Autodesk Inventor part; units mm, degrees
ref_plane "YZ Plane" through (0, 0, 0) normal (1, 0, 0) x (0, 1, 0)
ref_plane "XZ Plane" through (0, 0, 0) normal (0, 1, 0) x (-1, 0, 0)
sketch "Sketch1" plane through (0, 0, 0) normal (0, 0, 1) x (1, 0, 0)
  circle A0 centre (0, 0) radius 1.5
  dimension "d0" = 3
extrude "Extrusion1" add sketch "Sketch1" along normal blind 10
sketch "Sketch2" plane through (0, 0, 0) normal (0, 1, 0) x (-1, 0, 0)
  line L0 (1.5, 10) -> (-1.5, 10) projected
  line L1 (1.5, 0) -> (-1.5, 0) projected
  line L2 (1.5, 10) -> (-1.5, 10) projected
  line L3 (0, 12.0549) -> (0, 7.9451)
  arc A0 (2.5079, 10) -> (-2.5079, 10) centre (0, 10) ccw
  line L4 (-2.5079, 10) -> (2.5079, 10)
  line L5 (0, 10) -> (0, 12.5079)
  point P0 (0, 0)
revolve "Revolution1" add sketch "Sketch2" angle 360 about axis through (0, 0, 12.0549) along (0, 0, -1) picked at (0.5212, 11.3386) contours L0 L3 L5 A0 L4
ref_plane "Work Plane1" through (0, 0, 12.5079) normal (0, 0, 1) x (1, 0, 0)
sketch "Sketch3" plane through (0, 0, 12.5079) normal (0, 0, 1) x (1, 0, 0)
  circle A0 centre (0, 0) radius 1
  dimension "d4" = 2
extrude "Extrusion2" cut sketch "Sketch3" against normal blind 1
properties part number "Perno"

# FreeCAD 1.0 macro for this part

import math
import FreeCAD as App
import Part
import Sketcher

V = App.Vector

doc = App.newDocument("Part")
params = doc.addObject("Spreadsheet::Sheet", "Params")
for row, (alias, value) in enumerate([
    ("sketch1_diameter", "3 mm"),
    ("pad1_length", "10 mm"),
    ("revolution_angle", "360 deg"),
    ("sketch3_diameter", "2 mm"),
    ("pocket1_length", "1 mm"),
], start=1):
    params.set(f"A{row}", alias)
    params.set(f"B{row}", "=" + value)
    params.setAlias(f"B{row}", alias)

body = doc.addObject("PartDesign::Body", "Body")

# Sketch on XY plane
sketch1 = body.newObject("Sketcher::SketchObject", "Sketch")
sketch1.AttachmentSupport = (doc.getObject("XY_Plane"), [""])
sketch1.MapMode = "FlatFace"
sketch1.addGeometry(Part.Circle(V(0, 0, 0), V(0, 0, 1), 1.5), False)
sketch1.addConstraint(Sketcher.Constraint("Coincident", 0, 3, -1, 1))
sketch1.addConstraint(Sketcher.Constraint("Diameter", 0, 3.0))
sketch1.setExpression("Constraints[1]", "Params.sketch1_diameter")
pad1 = body.newObject("PartDesign::Pad", "Pad")
pad1.Profile = sketch1
pad1.setExpression("Length", "Params.pad1_length")

# Sketch on XZ plane
sketch2 = body.newObject("Sketcher::SketchObject", "Sketch001")
sketch2.AttachmentSupport = (doc.getObject("XZ_Plane"), [""])
sketch2.MapMode = "FlatFace"
sketch2.addGeometry(Part.LineSegment(V(0, 10, 0), V(-2.5, 10, 0)), False)
sketch2.addGeometry(Part.ArcOfCircle(Part.Circle(V(0, 10, 0), V(0, 0, 1), 2.5), math.radians(90), math.radians(180)), False)
sketch2.addGeometry(Part.LineSegment(V(0, 12.5, 0), V(0, 10, 0)), False)
sketch2.addConstraint(Sketcher.Constraint("Coincident", 0, 2, 1, 2))
sketch2.addConstraint(Sketcher.Constraint("Coincident", 1, 1, 2, 1))
sketch2.addConstraint(Sketcher.Constraint("Coincident", 2, 2, 0, 1))
sketch2.addConstraint(Sketcher.Constraint("Horizontal", 0))
sketch2.addConstraint(Sketcher.Constraint("Vertical", 2))
sketch2.addConstraint(Sketcher.Constraint("Coincident", 2, 2, 1, 3))
sketch2.addConstraint(Sketcher.Constraint("PointOnObject", 1, 3, -2))
sketch2.addConstraint(Sketcher.Constraint("DistanceY", -1, 1, 1, 3, 10.0))
sketch2.addConstraint(Sketcher.Constraint("Radius", 1, 2.508))
revolution = body.newObject("PartDesign::Revolution", "Revolution")
revolution.Profile = sketch2
revolution.ReferenceAxis = (sketch2, ["V_Axis"])
revolution.setExpression("Angle", "Params.revolution_angle")

# Sketch on XY plane
sketch3 = body.newObject("Sketcher::SketchObject", "Sketch002")
sketch3.AttachmentSupport = (doc.getObject("XY_Plane"), [""])
sketch3.MapMode = "FlatFace"
sketch3.AttachmentOffset = App.Placement(V(0, 0, 12.5079), App.Rotation())
sketch3.addGeometry(Part.Circle(V(0, 0, 0), V(0, 0, 1), 1), False)
sketch3.addConstraint(Sketcher.Constraint("Coincident", 0, 3, -1, 1))
sketch3.addConstraint(Sketcher.Constraint("Diameter", 0, 2.0))
sketch3.setExpression("Constraints[1]", "Params.sketch3_diameter")
pocket1 = body.newObject("PartDesign::Pocket", "Pocket")
pocket1.Profile = sketch3
pocket1.setExpression("Length", "Params.pocket1_length")

doc.recompute()
